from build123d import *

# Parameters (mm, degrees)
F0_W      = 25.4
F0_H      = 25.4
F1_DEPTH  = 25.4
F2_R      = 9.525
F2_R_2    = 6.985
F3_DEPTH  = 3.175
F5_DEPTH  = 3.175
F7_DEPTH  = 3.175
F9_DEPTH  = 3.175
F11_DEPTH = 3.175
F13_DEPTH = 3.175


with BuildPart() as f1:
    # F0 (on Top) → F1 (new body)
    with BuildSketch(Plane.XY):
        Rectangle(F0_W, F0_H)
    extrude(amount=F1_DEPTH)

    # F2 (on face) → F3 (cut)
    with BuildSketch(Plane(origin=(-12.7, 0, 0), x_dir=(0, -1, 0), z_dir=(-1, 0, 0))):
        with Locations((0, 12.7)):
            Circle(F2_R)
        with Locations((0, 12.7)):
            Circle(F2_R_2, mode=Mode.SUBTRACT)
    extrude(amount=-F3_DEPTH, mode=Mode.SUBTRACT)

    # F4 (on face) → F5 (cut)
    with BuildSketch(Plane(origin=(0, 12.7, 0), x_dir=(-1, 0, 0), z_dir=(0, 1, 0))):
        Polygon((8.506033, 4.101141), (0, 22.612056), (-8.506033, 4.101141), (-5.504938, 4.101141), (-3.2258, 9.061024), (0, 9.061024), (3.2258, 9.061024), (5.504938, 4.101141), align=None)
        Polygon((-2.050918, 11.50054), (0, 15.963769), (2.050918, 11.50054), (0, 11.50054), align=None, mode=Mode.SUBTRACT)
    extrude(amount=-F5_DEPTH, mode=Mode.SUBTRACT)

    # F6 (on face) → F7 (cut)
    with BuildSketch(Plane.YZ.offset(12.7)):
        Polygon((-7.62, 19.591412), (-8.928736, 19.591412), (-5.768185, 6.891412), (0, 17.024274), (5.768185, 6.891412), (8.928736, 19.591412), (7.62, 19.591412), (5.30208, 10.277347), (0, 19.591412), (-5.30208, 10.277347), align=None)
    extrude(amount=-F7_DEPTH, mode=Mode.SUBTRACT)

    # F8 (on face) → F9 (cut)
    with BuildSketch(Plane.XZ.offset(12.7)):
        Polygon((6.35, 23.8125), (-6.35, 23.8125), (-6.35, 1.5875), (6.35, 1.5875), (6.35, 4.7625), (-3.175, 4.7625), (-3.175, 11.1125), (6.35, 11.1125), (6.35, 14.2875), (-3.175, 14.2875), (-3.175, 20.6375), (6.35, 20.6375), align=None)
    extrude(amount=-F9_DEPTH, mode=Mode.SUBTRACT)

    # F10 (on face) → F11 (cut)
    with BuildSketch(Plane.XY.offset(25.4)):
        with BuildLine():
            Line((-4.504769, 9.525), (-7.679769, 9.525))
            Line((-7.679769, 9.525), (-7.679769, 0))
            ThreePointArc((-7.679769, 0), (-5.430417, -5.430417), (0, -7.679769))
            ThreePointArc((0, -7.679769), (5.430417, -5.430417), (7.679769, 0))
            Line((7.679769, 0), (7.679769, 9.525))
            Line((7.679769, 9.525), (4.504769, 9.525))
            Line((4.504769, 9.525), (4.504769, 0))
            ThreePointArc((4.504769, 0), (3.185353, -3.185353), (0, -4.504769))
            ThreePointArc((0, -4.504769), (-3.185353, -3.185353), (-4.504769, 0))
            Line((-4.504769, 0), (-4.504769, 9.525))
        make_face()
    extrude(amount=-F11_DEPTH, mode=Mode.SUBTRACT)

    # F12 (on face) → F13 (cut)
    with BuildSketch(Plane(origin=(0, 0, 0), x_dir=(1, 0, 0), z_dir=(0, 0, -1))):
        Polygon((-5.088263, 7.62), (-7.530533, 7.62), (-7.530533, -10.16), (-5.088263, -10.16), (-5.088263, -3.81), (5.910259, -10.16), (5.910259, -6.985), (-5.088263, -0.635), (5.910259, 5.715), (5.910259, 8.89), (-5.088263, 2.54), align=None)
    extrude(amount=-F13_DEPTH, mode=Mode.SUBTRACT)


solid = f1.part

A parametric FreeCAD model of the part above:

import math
import FreeCAD as App
import Part
import Sketcher

V = App.Vector
Q = App.Units.Quantity


def add_polygon(sketch, points):
    """Adds a closed chain of lines whose ends are joined by coincident constraints."""
    first, n = sketch.GeometryCount, len(points)
    for a, b in zip(points, points[1:] + points[:1]):
        sketch.addGeometry(Part.LineSegment(App.Vector(*a, 0), App.Vector(*b, 0)), False)
    for i in range(n):
        sketch.addConstraint(Sketcher.Constraint("Coincident", first + i, 2, first + (i + 1) % n, 1))

doc = App.newDocument("Part")
body = doc.addObject("PartDesign::Body", "Body")

# Sketch on XY plane
sketch1 = body.newObject("Sketcher::SketchObject", "Sketch")
sketch1.AttachmentSupport = (doc.getObject("XY_Plane"), [""])
sketch1.MapMode = "FlatFace"
add_polygon(sketch1, [(-12.7, 12.7), (-12.7, -12.7), (12.7, -12.7), (12.7, 12.7)])  # lines 0-3
sketch1.addConstraint([
    Sketcher.Constraint("Vertical", 0),
    Sketcher.Constraint("Horizontal", 1),
    Sketcher.Constraint("Vertical", 2),
    Sketcher.Constraint("Horizontal", 3),
    Sketcher.Constraint("Symmetric", 0, 2, 2, 2, -1, 1),
    Sketcher.Constraint("Equal", 3, 0),
    Sketcher.Constraint("DistanceX", 1, 1, 1, 2, Q("1 in")),
])
pad1 = body.newObject("PartDesign::Pad", "Pad")
pad1.Profile = sketch1
pad1.Length = Q("1 in")

# Sketch on YZ plane
sketch2 = body.newObject("Sketcher::SketchObject", "Sketch001")
sketch2.AttachmentSupport = (doc.getObject("YZ_Plane"), [""])
sketch2.MapMode = "FlatFace"
sketch2.AttachmentOffset = App.Placement(V(0, 0, -0.5 * 25.4), App.Rotation())
sketch2.addGeometry([
    Part.Circle(V(0, 12.7, 0), V(0, 0, 1), 9.525),
    Part.Circle(V(0, 12.7, 0), V(0, 0, 1), 6.985),
], False)
sketch2.addConstraint([
    Sketcher.Constraint("Coincident", 1, 3, 0, 3),
    Sketcher.Constraint("PointOnObject", 0, 3, -2),
    Sketcher.Constraint("Diameter", 0, Q("0.75 in")),
    Sketcher.Constraint("Diameter", 1, Q("0.55 in")),
    Sketcher.Constraint("DistanceY", -1, 1, 0, 3, Q("0.5 in")),
])
pocket1 = body.newObject("PartDesign::Pocket", "Pocket")
pocket1.Profile = sketch2
pocket1.Length = Q("0.125 in")
pocket1.Reversed = True

# Sketch on XZ plane
sketch3 = body.newObject("Sketcher::SketchObject", "Sketch002")
sketch3.AttachmentSupport = (doc.getObject("XZ_Plane"), [""])
sketch3.MapMode = "FlatFace"
sketch3.AttachmentOffset = App.Placement(V(0, 0, -0.5 * 25.4), App.Rotation())
add_polygon(sketch3, [(-8.506033, 4.101141), (0, 22.612056), (8.506033, 4.101141), (5.504938, 4.101141), (3.2258, 9.061024), (-3.2258, 9.061024), (-5.504938, 4.101141)])  # lines 0-6
add_polygon(sketch3, [(-2.050918, 11.50054), (2.050918, 11.50054), (0, 15.963769)])  # lines 7-9
sketch3.addConstraint([
    Sketcher.Constraint("Horizontal", 2),
    Sketcher.Constraint("Horizontal", 4),
    Sketcher.Constraint("Horizontal", 6),
    Sketcher.Constraint("Horizontal", 7),
    Sketcher.Constraint("Symmetric", 2, 2, 5, 2, -2),
    Sketcher.Constraint("PointOnObject", 0, 2, -2),
    Sketcher.Constraint("PointOnObject", 8, 2, -2),
    Sketcher.Constraint("Parallel", 1, 3),
    Sketcher.Constraint("Parallel", 0, 5),
    Sketcher.Constraint("Parallel", 3, 8),
    Sketcher.Constraint("Parallel", 5, 9),
    Sketcher.Constraint("Equal", 2, 6),
    Sketcher.Constraint("DistanceX", 4, 2, 4, 1, Q("0.254 in")),
    Sketcher.Constraint("DistanceY", 2, 2, 7, 2, 7.399399),
    Sketcher.Constraint("Distance", 0, 20.37171),
    Sketcher.Constraint("Distance", 3, 5.458471),
    Sketcher.Constraint("Distance", 8, 4.911891),
    Sketcher.Constraint("DistanceX", 2, 2, 2, 1, 3.001095),
    Sketcher.Constraint("DistanceY", -1, 1, 1, 2, 4.101141),
])
pocket2 = body.newObject("PartDesign::Pocket", "Pocket001")
pocket2.Profile = sketch3
pocket2.Length = Q("0.125 in")
pocket2.Reversed = True

# Sketch on YZ plane
sketch4 = body.newObject("Sketcher::SketchObject", "Sketch003")
sketch4.AttachmentSupport = (doc.getObject("YZ_Plane"), [""])
sketch4.MapMode = "FlatFace"
sketch4.AttachmentOffset = App.Placement(V(0, 0, 0.5 * 25.4), App.Rotation())
add_polygon(sketch4, [(-7.62, 19.591412), (-8.928736, 19.591412), (-5.768185, 6.891412), (0, 17.024274), (5.768185, 6.891412), (8.928736, 19.591412), (7.62, 19.591412), (5.30208, 10.277347), (0, 19.591412), (-5.30208, 10.277347)])  # lines 0-9
sketch4.addConstraint([
    Sketcher.Constraint("Horizontal", 0),
    Sketcher.Constraint("Horizontal", 5),
    Sketcher.Constraint("Symmetric", 1, 2, 3, 2, -2),
    Sketcher.Constraint("Symmetric", 0, 2, 4, 2, -2),
    Sketcher.Constraint("Symmetric", 6, 2, 8, 2, -2),
    Sketcher.Constraint("PointOnObject", 2, 2, -2),
    Sketcher.Constraint("PointOnObject", 7, 2, -2),
    Sketcher.Constraint("Parallel", 4, 6),
    Sketcher.Constraint("Parallel", 3, 7),
    Sketcher.Constraint("Parallel", 1, 9),
    Sketcher.Constraint("Horizontal", 5, 2, 7, 2),
    Sketcher.Constraint("DistanceX", -1, 1, 5, 2, Q("0.3 in")),
    Sketcher.Constraint("DistanceY", 1, 2, 0, 2, Q("0.5 in")),
    Sketcher.Constraint("DistanceX", 0, 2, 0, 1, 1.308736),
    Sketcher.Constraint("DistanceY", -1, 1, 0, 2, 19.591412),
    Sketcher.Constraint("DistanceX", -1, 1, 6, 2, 5.30208),
    Sketcher.Constraint("DistanceX", 0, 2, 1, 2, 3.160551),
])
pocket3 = body.newObject("PartDesign::Pocket", "Pocket002")
pocket3.Profile = sketch4
pocket3.Length = Q("0.125 in")

# Sketch on XZ plane
sketch5 = body.newObject("Sketcher::SketchObject", "Sketch004")
sketch5.AttachmentSupport = (doc.getObject("XZ_Plane"), [""])
sketch5.MapMode = "FlatFace"
sketch5.AttachmentOffset = App.Placement(V(0, 0, 0.5 * 25.4), App.Rotation())
add_polygon(sketch5, [(6.35, 23.8125), (-6.35, 23.8125), (-6.35, 1.5875), (6.35, 1.5875), (6.35, 4.7625), (-3.175, 4.7625), (-3.175, 11.1125), (6.35, 11.1125), (6.35, 14.2875), (-3.175, 14.2875), (-3.175, 20.6375), (6.35, 20.6375)])  # lines 0-11
sketch5.addConstraint([
    Sketcher.Constraint("Horizontal", 0),
    Sketcher.Constraint("Vertical", 1),
    Sketcher.Constraint("Horizontal", 2),
    Sketcher.Constraint("Vertical", 3),
    Sketcher.Constraint("Horizontal", 4),
    Sketcher.Constraint("Vertical", 5),
    Sketcher.Constraint("Horizontal", 6),
    Sketcher.Constraint("Vertical", 7),
    Sketcher.Constraint("Horizontal", 8),
    Sketcher.Constraint("Vertical", 9),
    Sketcher.Constraint("Horizontal", 10),
    Sketcher.Constraint("Vertical", 11),
    Sketcher.Constraint("Vertical", 3, 2, 6, 2),
    Sketcher.Constraint("Vertical", 5, 2, 8, 2),
    Sketcher.Constraint("Vertical", 7, 2, 10, 2),
    Sketcher.Constraint("Equal", 3, 7),
    Sketcher.Constraint("Equal", 5, 9),
    Sketcher.Constraint("Equal", 7, 11),
    Sketcher.Constraint("DistanceX", 0, 2, 0, 1, Q("0.5 in")),
    Sketcher.Constraint("DistanceY", 5, 1, 5, 2, Q("0.25 in")),
    Sketcher.Constraint("DistanceY", 5, 2, 0, 2, Q("0.5 in")),
    Sketcher.Constraint("DistanceX", 4, 2, 4, 1, Q("0.375 in")),
    Sketcher.Constraint("DistanceX", 0, 2, -1, 1, Q("0.25 in")),
    Sketcher.Constraint("DistanceY", -1, 1, 0, 2, Q("0.9375 in")),
])
pocket4 = body.newObject("PartDesign::Pocket", "Pocket003")
pocket4.Profile = sketch5
pocket4.Length = Q("0.125 in")

# Sketch on XY plane
sketch6 = body.newObject("Sketcher::SketchObject", "Sketch005")
sketch6.AttachmentSupport = (doc.getObject("XY_Plane"), [""])
sketch6.MapMode = "FlatFace"
sketch6.AttachmentOffset = App.Placement(V(0, 0, 1 * 25.4), App.Rotation())
sketch6.addGeometry([
    Part.LineSegment(V(-4.504769, 9.525, 0), V(-7.679769, 9.525, 0)),  # 0
    Part.LineSegment(V(-7.679769, 9.525, 0), V(-7.679769, 0, 0)),  # 1
    Part.ArcOfCircle(Part.Circle(V(-0.000001, -0.000001, 0), V(0, 0, 1), 7.679768), math.radians(179.999993), math.radians(270.000007)),  # 2
    Part.ArcOfCircle(Part.Circle(V(0.000001, -0.000001, 0), V(0, 0, 1), 7.679768), math.radians(-90.000007), math.radians(0.000007)),  # 3
    Part.LineSegment(V(7.679769, 0, 0), V(7.679769, 9.525, 0)),  # 4
    Part.LineSegment(V(7.679769, 9.525, 0), V(4.504769, 9.525, 0)),  # 5
    Part.LineSegment(V(4.504769, 9.525, 0), V(4.504769, 0, 0)),  # 6
    Part.ArcOfCircle(Part.Circle(V(0.000001, -0.000001, 0), V(0, 0, 1), 4.504768), math.radians(-90.000013), math.radians(0.000013)),  # 7
    Part.ArcOfCircle(Part.Circle(V(-0.000001, -0.000001, 0), V(0, 0, 1), 4.504768), math.radians(179.999987), math.radians(270.000013)),  # 8
    Part.LineSegment(V(-4.504769, 0, 0), V(-4.504769, 9.525, 0)),  # 9
], False)
sketch6.addConstraint([
    Sketcher.Constraint("Coincident", 0, 2, 1, 1),
    Sketcher.Constraint("Tangent", 1, 2, 2, 1),
    Sketcher.Constraint("Tangent", 2, 2, 3, 1),
    Sketcher.Constraint("Tangent", 3, 2, 4, 1),
    Sketcher.Constraint("Coincident", 4, 2, 5, 1),
    Sketcher.Constraint("Coincident", 5, 2, 6, 1),
    Sketcher.Constraint("Tangent", 6, 2, 7, 2),
    Sketcher.Constraint("Tangent", 7, 1, 8, 2),
    Sketcher.Constraint("Tangent", 8, 1, 9, 1),
    Sketcher.Constraint("Coincident", 9, 2, 0, 1),
    Sketcher.Constraint("Horizontal", 0),
    Sketcher.Constraint("Vertical", 1),
    Sketcher.Constraint("Vertical", 4),
    Sketcher.Constraint("Horizontal", 5),
    Sketcher.Constraint("Vertical", 6),
    Sketcher.Constraint("Vertical", 9),
    Sketcher.Constraint("Coincident", 2, 3, -1, 1),
    Sketcher.Constraint("Coincident", 7, 3, -1, 1),
    Sketcher.Constraint("Equal", 2, 3),
    Sketcher.Constraint("Equal", 7, 8),
    Sketcher.Constraint("PointOnObject", 2, 2, -2),
    Sketcher.Constraint("PointOnObject", 7, 1, -2),
    Sketcher.Constraint("Horizontal", 0, 2, 4, 2),
    Sketcher.Constraint("DistanceX", 0, 2, 0, 1, Q("0.125 in")),
    Sketcher.Constraint("DistanceY", 1, 2, 1, 1, Q("0.375 in")),
    Sketcher.Constraint("Radius", 2, 7.679768),
])
pocket5 = body.newObject("PartDesign::Pocket", "Pocket004")
pocket5.Profile = sketch6
pocket5.Length = Q("0.125 in")

# Sketch on XY plane
sketch7 = body.newObject("Sketcher::SketchObject", "Sketch006")
sketch7.AttachmentSupport = (doc.getObject("XY_Plane"), [""])
sketch7.MapMode = "FlatFace"
add_polygon(sketch7, [(-5.088263, -7.62), (-7.530533, -7.62), (-7.530533, 10.16), (-5.088263, 10.16), (-5.088263, 3.81), (5.910259, 10.16), (5.910259, 6.985), (-5.088263, 0.635), (5.910259, -5.715), (5.910259, -8.89), (-5.088263, -2.54)])  # lines 0-10
sketch7.addConstraint([
    Sketcher.Constraint("Horizontal", 0),
    Sketcher.Constraint("Vertical", 1),
    Sketcher.Constraint("Horizontal", 2),
    Sketcher.Constraint("Vertical", 3),
    Sketcher.Constraint("Vertical", 5),
    Sketcher.Constraint("Vertical", 8),
    Sketcher.Constraint("Vertical", 10),
    Sketcher.Constraint("Parallel", 4, 6),
    Sketcher.Constraint("Parallel", 7, 9),
    Sketcher.Constraint("Horizontal", 2, 2, 4, 2),
    Sketcher.Constraint("Vertical", 3, 2, 6, 2),
    Sketcher.Constraint("Vertical", 5, 2, 7, 2),
    Sketcher.Constraint("Vertical", 6, 2, 9, 2),
    Sketcher.Constraint("Equal", 5, 8),
    Sketcher.Constraint("Equal", 6, 7),
    Sketcher.Constraint("DistanceY", 1, 1, 1, 2, Q("0.7 in")),
    Sketcher.Constraint("DistanceY", 10, 2, 10, 1, Q("0.2 in")),
    Sketcher.Constraint("Angle", 4, Q("30.000001 deg")),
    Sketcher.Constraint("Distance", 4, Q("0.5 in")),
    Sketcher.Constraint("DistanceY", 0, 2, -1, 1, Q("0.3 in")),
    Sketcher.Constraint("DistanceX", 0, 2, 0, 1, 2.44227),
    Sketcher.Constraint("DistanceX", -1, 1, 4, 2, 5.910259),
])
pocket6 = body.newObject("PartDesign::Pocket", "Pocket005")
pocket6.Profile = sketch7
pocket6.Length = Q("0.125 in")
pocket6.Reversed = True

doc.recompute()
